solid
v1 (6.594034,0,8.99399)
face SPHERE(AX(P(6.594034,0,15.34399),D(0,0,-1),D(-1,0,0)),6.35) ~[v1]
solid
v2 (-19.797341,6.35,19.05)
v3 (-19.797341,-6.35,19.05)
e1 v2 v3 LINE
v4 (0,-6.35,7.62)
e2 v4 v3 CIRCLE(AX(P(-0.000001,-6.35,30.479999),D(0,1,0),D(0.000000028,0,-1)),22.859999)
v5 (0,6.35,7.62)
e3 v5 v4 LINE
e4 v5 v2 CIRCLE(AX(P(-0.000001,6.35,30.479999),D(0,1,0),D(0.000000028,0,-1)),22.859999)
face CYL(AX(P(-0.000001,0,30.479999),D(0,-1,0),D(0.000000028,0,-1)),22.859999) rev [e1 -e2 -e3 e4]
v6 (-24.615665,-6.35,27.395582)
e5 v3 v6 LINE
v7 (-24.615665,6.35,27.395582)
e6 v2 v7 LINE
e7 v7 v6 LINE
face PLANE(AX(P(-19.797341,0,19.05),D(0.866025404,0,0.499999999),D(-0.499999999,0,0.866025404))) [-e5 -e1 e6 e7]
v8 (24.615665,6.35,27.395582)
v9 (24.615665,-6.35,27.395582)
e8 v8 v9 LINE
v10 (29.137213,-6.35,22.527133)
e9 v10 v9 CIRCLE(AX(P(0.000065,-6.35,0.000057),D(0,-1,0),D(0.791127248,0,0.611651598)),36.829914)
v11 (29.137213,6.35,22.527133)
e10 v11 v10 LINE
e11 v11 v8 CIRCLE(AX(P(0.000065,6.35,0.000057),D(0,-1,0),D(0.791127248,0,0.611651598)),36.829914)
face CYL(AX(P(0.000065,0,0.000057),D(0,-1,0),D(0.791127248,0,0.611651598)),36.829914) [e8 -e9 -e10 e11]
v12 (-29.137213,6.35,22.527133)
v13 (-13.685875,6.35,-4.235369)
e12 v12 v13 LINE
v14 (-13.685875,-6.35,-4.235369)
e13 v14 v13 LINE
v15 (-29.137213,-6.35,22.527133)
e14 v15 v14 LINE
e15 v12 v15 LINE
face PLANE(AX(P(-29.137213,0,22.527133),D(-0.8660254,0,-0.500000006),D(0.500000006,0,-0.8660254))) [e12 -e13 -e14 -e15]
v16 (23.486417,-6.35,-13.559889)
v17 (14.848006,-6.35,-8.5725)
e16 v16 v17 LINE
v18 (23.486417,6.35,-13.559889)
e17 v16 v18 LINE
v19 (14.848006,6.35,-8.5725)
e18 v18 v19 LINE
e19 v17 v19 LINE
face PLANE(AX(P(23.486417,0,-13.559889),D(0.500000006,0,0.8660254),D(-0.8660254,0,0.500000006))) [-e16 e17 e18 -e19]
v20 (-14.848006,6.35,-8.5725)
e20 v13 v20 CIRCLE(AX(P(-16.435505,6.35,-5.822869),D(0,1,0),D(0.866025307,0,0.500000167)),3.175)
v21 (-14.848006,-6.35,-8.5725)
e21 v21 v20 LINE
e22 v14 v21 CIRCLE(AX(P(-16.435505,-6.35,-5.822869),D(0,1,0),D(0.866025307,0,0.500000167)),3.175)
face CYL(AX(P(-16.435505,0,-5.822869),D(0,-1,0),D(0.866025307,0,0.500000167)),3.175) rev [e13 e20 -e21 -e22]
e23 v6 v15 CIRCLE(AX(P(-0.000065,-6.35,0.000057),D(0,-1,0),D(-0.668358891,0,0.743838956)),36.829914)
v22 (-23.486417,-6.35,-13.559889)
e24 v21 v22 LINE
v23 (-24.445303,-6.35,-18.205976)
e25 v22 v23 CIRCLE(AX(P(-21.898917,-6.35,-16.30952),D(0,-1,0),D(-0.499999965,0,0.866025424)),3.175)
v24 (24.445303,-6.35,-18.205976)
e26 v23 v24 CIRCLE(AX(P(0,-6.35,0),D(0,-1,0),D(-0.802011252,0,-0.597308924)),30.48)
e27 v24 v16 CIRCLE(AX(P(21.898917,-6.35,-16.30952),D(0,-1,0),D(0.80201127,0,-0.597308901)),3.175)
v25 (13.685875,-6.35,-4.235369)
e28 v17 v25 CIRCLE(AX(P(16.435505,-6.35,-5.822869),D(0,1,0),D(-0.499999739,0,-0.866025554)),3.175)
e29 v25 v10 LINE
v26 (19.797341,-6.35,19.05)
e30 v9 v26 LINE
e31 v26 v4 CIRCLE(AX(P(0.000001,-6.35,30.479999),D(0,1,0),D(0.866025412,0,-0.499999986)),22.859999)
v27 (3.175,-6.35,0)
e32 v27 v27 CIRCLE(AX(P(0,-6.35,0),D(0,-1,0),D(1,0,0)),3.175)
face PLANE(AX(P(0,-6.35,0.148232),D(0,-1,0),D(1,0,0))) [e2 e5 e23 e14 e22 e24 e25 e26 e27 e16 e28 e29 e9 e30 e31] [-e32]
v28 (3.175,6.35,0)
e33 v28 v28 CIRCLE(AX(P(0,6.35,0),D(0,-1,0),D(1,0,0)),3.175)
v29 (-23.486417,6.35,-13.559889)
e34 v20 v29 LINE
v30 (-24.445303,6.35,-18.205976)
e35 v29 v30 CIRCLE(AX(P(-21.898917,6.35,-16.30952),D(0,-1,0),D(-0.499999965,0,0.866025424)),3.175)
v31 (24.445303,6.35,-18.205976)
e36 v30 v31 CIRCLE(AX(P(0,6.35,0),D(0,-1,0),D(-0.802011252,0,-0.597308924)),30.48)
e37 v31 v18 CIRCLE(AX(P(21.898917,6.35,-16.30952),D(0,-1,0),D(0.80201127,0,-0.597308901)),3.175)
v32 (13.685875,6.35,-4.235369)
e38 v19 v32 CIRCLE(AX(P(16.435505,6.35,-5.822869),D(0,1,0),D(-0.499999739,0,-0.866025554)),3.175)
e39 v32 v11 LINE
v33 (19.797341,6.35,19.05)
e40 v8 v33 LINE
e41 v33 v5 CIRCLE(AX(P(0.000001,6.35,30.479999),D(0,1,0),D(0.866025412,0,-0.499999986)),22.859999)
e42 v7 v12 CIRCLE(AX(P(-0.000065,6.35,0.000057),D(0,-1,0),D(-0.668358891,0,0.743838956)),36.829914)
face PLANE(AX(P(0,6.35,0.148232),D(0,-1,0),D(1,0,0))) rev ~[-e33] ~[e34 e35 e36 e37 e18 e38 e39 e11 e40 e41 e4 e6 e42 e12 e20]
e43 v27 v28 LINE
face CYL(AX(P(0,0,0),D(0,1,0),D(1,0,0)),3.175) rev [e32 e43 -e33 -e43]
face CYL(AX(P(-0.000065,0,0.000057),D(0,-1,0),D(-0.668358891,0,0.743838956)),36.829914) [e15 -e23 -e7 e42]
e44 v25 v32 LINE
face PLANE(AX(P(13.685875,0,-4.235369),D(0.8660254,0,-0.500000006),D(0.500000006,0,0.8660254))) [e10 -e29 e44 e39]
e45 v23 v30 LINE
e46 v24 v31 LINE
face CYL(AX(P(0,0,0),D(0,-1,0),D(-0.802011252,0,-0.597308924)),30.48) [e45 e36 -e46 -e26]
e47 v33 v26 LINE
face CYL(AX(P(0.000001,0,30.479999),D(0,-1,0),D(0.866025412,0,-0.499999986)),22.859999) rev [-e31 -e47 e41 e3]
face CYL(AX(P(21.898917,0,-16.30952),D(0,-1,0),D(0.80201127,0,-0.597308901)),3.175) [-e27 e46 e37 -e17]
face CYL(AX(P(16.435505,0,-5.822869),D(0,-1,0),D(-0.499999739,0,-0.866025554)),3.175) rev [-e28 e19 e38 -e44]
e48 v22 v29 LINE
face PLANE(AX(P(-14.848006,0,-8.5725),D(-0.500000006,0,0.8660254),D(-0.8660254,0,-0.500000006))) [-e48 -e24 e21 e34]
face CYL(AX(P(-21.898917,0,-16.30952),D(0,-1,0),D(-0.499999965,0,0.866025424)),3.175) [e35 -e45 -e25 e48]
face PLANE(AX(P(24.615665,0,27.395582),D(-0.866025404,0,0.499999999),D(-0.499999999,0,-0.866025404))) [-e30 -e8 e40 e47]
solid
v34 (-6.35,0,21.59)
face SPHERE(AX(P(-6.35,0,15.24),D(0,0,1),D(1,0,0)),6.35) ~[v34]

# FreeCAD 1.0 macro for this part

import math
import FreeCAD as App
import Part
import Sketcher
from FreeCAD import Vector
Q = App.Units.Quantity

doc = App.newDocument("Part")
body = doc.addObject("PartDesign::Body", "Body")

sketch1 = doc.addObject("Sketcher::SketchObject", "Sketch")
body.addObject(sketch1)
sketch1.AttachmentSupport = (doc.XZ_Plane, [""])
sketch1.MapMode = "FlatFace"
sketch1.addGeometry([
    Part.LineSegment(Vector(13.685875, -4.235369, 0), Vector(29.137213, 22.527133, 0)),
    Part.ArcOfCircle(Part.Circle(Vector(0.000065, 0.000057, 0), Vector(0, 0, 1), 36.829914), math.radians(37.70902), math.radians(48.059471)),
    Part.LineSegment(Vector(24.615665, 27.395582, 0), Vector(19.797341, 19.05, 0)),
    Part.ArcOfCircle(Part.Circle(Vector(0.000001, 30.479999, 0), Vector(0, 0, 1), 22.859999), math.radians(-90.000002), math.radians(-29.999999)),
    Part.ArcOfCircle(Part.Circle(Vector(-0.000001, 30.479999, 0), Vector(0, 0, 1), 22.859999), math.radians(-150.000001), math.radians(-89.999998)),
    Part.LineSegment(Vector(-19.797341, 19.05, 0), Vector(-24.615665, 27.395582, 0)),
    Part.ArcOfCircle(Part.Circle(Vector(-0.000065, 0.000057, 0), Vector(0, 0, 1), 36.829914), math.radians(131.940529), math.radians(142.29098)),
    Part.LineSegment(Vector(-29.137213, 22.527133, 0), Vector(-13.685875, -4.235369, 0)),
    Part.ArcOfCircle(Part.Circle(Vector(-16.435505, -5.822869, 0), Vector(0, 0, 1), 3.175), math.radians(-60.000017), math.radians(30.000011)),
    Part.LineSegment(Vector(-14.848006, -8.5725, 0), Vector(-23.486417, -13.559889, 0)),
    Part.ArcOfCircle(Part.Circle(Vector(-21.898917, -16.30952, 0), Vector(0, 0, 1), 3.175), math.radians(119.999998), math.radians(216.677404)),
    Part.ArcOfCircle(Part.Circle(Vector(0, 0, 0), Vector(0, 0, 1), 30.48), math.radians(-143.322594), math.radians(-36.677406)),
    Part.ArcOfCircle(Part.Circle(Vector(21.898917, -16.30952, 0), Vector(0, 0, 1), 3.175), math.radians(-36.677404), math.radians(60.000002)),
    Part.LineSegment(Vector(23.486417, -13.559889, 0), Vector(14.848006, -8.5725, 0)),
    Part.ArcOfCircle(Part.Circle(Vector(16.435505, -5.822869, 0), Vector(0, 0, 1), 3.175), math.radians(149.999989), math.radians(240.000017)),
    Part.Circle(Vector(0, 0, 0), Vector(0, 0, 1), 3.175),
], False)
sketch1.addConstraint([
    Sketcher.Constraint("Coincident", 0, 2, 1, 1),
    Sketcher.Constraint("Coincident", 1, 2, 2, 1),
    Sketcher.Constraint("Tangent", 2, 2, 3, 2),
    Sketcher.Constraint("Tangent", 3, 1, 4, 2),
    Sketcher.Constraint("Tangent", 4, 1, 5, 1),
    Sketcher.Constraint("Coincident", 5, 2, 6, 1),
    Sketcher.Constraint("Coincident", 6, 2, 7, 1),
    Sketcher.Constraint("Tangent", 7, 2, 8, 2),
    Sketcher.Constraint("Tangent", 8, 1, 9, 1),
    Sketcher.Constraint("Tangent", 9, 2, 10, 1),
    Sketcher.Constraint("Tangent", 10, 2, 11, 1),
    Sketcher.Constraint("Tangent", 11, 2, 12, 1),
    Sketcher.Constraint("Tangent", 12, 2, 13, 1),
    Sketcher.Constraint("Tangent", 13, 2, 14, 2),
    Sketcher.Constraint("Tangent", 14, 1, 0, 1),
    Sketcher.Constraint("Coincident", 11, 3, -1, 1),
    Sketcher.Constraint("Coincident", 15, 3, -1, 1),
    Sketcher.Constraint("Equal", 3, 4),
    Sketcher.Constraint("Equal", 1, 6),
    Sketcher.Constraint("Equal", 8, 10),
    Sketcher.Constraint("Equal", 10, 12),
    Sketcher.Constraint("Equal", 12, 14),
    Sketcher.Constraint("Equal", 14, 15),
    Sketcher.Constraint("Symmetric", 1, 3, 6, 3, -2),
    Sketcher.Constraint("Symmetric", 8, 3, 14, 3, -2),
    Sketcher.Constraint("Symmetric", 2, 2, 4, 1, -2),
    Sketcher.Constraint("PointOnObject", 3, 1, -2),
    Sketcher.Constraint("Parallel", 0, 2),
    Sketcher.Constraint("Parallel", 5, 7),
    Sketcher.Constraint("Perpendicular", 7, 9),
    Sketcher.Constraint("Perpendicular", 2, 13),
    Sketcher.Constraint("Radius", 3, Q("0.9 in")),
    Sketcher.Constraint("Radius", 11, Q("1.2 in")),
    Sketcher.Constraint("Diameter", 15, Q("0.25 in")),
    Sketcher.Constraint("Angle", 0, Q("60 deg")),
    Sketcher.Constraint("DistanceY", -1, 1, 3, 3, Q("1.2 in")),
    Sketcher.Constraint("DistanceY", 8, 1, -1, 1, Q("0.3375 in")),
    Sketcher.Constraint("Radius", 1, Q("36.829914 mm")),
    Sketcher.Constraint("DistanceX", 1, 3, 1, 2, Q("24.6156 mm")),
    Sketcher.Constraint("DistanceX", 10, 2, 8, 3, Q("8.009798 mm")),
    Sketcher.Constraint("Distance", 2, Q("9.636648 mm")),
])
pad1 = doc.addObject("PartDesign::Pad", "Pad")
body.addObject(pad1)
pad1.Profile = sketch1
pad1.Length = Q("0.5 in")
pad1.Midplane = True
body2 = doc.addObject("PartDesign::Body", "Body001")

sketch2 = doc.addObject("Sketcher::SketchObject", "Sketch001")
body2.addObject(sketch2)
sketch2.AttachmentSupport = (doc.getObject("XZ_Plane001"), [""])
sketch2.MapMode = "FlatFace"
sketch2.addGeometry([
    Part.LineSegment(Vector(7, 9, 0), Vector(7, 22, 0)),
    Part.ArcOfCircle(Part.Circle(Vector(7, 15, 0), Vector(0, 0, 1), 6), math.radians(90), math.radians(270)),
], False)
sketch2.addGeometry(Part.LineSegment(Vector(7, 9, 0), Vector(7, 22, 0)), True)
sketch2.addConstraint([
    Sketcher.Constraint("Coincident", 0, 1, 1, 2),
    Sketcher.Constraint("Coincident", 1, 1, 0, 2),
    Sketcher.Constraint("Vertical", 0),
    Sketcher.Constraint("Vertical", 2),
    Sketcher.Constraint("Coincident", 2, 1, 0, 1),
    Sketcher.Constraint("Vertical", 1, 3, 0, 1),
    Sketcher.Constraint("Equal", 0, 2),
    Sketcher.Constraint("Radius", 1, Q("0.25 in")),
    Sketcher.Constraint("DistanceY", -1, 1, 1, 3, Q("15.34399 mm")),
    Sketcher.Constraint("DistanceX", -1, 1, 1, 3, Q("6.594034 mm")),
])
revolution = doc.addObject("PartDesign::Revolution", "Revolution")
body2.addObject(revolution)
revolution.Profile = sketch2
revolution.ReferenceAxis = (sketch2, ["Axis0"])
revolution.Angle = 360
body3 = doc.addObject("PartDesign::Body", "Body002")

sketch3 = doc.addObject("Sketcher::SketchObject", "Sketch002")
body3.addObject(sketch3)
sketch3.AttachmentSupport = (doc.getObject("XZ_Plane002"), [""])
sketch3.MapMode = "FlatFace"
sketch3.addGeometry([
    Part.LineSegment(Vector(-6, 22, 0), Vector(-6, 9, 0)),
    Part.ArcOfCircle(Part.Circle(Vector(-6, 15, 0), Vector(0, 0, 1), 6), math.radians(-90), math.radians(90)),
], False)
sketch3.addGeometry(Part.LineSegment(Vector(-6, 22, 0), Vector(-6, 9, 0)), True)
sketch3.addConstraint([
    Sketcher.Constraint("Coincident", 0, 1, 1, 2),
    Sketcher.Constraint("Coincident", 1, 1, 0, 2),
    Sketcher.Constraint("Vertical", 0),
    Sketcher.Constraint("Vertical", 2),
    Sketcher.Constraint("Coincident", 2, 1, 0, 1),
    Sketcher.Constraint("Vertical", 1, 3, 0, 1),
    Sketcher.Constraint("Equal", 0, 2),
    Sketcher.Constraint("Radius", 1, Q("0.25 in")),
    Sketcher.Constraint("DistanceY", -1, 1, 1, 3, Q("0.6 in")),
    Sketcher.Constraint("DistanceX", 1, 3, -1, 1, Q("0.25 in")),
])
revolution2 = doc.addObject("PartDesign::Revolution", "Revolution001")
body3.addObject(revolution2)
revolution2.Profile = sketch3
revolution2.ReferenceAxis = (sketch3, ["Axis0"])
revolution2.Angle = 360

doc.recompute()
